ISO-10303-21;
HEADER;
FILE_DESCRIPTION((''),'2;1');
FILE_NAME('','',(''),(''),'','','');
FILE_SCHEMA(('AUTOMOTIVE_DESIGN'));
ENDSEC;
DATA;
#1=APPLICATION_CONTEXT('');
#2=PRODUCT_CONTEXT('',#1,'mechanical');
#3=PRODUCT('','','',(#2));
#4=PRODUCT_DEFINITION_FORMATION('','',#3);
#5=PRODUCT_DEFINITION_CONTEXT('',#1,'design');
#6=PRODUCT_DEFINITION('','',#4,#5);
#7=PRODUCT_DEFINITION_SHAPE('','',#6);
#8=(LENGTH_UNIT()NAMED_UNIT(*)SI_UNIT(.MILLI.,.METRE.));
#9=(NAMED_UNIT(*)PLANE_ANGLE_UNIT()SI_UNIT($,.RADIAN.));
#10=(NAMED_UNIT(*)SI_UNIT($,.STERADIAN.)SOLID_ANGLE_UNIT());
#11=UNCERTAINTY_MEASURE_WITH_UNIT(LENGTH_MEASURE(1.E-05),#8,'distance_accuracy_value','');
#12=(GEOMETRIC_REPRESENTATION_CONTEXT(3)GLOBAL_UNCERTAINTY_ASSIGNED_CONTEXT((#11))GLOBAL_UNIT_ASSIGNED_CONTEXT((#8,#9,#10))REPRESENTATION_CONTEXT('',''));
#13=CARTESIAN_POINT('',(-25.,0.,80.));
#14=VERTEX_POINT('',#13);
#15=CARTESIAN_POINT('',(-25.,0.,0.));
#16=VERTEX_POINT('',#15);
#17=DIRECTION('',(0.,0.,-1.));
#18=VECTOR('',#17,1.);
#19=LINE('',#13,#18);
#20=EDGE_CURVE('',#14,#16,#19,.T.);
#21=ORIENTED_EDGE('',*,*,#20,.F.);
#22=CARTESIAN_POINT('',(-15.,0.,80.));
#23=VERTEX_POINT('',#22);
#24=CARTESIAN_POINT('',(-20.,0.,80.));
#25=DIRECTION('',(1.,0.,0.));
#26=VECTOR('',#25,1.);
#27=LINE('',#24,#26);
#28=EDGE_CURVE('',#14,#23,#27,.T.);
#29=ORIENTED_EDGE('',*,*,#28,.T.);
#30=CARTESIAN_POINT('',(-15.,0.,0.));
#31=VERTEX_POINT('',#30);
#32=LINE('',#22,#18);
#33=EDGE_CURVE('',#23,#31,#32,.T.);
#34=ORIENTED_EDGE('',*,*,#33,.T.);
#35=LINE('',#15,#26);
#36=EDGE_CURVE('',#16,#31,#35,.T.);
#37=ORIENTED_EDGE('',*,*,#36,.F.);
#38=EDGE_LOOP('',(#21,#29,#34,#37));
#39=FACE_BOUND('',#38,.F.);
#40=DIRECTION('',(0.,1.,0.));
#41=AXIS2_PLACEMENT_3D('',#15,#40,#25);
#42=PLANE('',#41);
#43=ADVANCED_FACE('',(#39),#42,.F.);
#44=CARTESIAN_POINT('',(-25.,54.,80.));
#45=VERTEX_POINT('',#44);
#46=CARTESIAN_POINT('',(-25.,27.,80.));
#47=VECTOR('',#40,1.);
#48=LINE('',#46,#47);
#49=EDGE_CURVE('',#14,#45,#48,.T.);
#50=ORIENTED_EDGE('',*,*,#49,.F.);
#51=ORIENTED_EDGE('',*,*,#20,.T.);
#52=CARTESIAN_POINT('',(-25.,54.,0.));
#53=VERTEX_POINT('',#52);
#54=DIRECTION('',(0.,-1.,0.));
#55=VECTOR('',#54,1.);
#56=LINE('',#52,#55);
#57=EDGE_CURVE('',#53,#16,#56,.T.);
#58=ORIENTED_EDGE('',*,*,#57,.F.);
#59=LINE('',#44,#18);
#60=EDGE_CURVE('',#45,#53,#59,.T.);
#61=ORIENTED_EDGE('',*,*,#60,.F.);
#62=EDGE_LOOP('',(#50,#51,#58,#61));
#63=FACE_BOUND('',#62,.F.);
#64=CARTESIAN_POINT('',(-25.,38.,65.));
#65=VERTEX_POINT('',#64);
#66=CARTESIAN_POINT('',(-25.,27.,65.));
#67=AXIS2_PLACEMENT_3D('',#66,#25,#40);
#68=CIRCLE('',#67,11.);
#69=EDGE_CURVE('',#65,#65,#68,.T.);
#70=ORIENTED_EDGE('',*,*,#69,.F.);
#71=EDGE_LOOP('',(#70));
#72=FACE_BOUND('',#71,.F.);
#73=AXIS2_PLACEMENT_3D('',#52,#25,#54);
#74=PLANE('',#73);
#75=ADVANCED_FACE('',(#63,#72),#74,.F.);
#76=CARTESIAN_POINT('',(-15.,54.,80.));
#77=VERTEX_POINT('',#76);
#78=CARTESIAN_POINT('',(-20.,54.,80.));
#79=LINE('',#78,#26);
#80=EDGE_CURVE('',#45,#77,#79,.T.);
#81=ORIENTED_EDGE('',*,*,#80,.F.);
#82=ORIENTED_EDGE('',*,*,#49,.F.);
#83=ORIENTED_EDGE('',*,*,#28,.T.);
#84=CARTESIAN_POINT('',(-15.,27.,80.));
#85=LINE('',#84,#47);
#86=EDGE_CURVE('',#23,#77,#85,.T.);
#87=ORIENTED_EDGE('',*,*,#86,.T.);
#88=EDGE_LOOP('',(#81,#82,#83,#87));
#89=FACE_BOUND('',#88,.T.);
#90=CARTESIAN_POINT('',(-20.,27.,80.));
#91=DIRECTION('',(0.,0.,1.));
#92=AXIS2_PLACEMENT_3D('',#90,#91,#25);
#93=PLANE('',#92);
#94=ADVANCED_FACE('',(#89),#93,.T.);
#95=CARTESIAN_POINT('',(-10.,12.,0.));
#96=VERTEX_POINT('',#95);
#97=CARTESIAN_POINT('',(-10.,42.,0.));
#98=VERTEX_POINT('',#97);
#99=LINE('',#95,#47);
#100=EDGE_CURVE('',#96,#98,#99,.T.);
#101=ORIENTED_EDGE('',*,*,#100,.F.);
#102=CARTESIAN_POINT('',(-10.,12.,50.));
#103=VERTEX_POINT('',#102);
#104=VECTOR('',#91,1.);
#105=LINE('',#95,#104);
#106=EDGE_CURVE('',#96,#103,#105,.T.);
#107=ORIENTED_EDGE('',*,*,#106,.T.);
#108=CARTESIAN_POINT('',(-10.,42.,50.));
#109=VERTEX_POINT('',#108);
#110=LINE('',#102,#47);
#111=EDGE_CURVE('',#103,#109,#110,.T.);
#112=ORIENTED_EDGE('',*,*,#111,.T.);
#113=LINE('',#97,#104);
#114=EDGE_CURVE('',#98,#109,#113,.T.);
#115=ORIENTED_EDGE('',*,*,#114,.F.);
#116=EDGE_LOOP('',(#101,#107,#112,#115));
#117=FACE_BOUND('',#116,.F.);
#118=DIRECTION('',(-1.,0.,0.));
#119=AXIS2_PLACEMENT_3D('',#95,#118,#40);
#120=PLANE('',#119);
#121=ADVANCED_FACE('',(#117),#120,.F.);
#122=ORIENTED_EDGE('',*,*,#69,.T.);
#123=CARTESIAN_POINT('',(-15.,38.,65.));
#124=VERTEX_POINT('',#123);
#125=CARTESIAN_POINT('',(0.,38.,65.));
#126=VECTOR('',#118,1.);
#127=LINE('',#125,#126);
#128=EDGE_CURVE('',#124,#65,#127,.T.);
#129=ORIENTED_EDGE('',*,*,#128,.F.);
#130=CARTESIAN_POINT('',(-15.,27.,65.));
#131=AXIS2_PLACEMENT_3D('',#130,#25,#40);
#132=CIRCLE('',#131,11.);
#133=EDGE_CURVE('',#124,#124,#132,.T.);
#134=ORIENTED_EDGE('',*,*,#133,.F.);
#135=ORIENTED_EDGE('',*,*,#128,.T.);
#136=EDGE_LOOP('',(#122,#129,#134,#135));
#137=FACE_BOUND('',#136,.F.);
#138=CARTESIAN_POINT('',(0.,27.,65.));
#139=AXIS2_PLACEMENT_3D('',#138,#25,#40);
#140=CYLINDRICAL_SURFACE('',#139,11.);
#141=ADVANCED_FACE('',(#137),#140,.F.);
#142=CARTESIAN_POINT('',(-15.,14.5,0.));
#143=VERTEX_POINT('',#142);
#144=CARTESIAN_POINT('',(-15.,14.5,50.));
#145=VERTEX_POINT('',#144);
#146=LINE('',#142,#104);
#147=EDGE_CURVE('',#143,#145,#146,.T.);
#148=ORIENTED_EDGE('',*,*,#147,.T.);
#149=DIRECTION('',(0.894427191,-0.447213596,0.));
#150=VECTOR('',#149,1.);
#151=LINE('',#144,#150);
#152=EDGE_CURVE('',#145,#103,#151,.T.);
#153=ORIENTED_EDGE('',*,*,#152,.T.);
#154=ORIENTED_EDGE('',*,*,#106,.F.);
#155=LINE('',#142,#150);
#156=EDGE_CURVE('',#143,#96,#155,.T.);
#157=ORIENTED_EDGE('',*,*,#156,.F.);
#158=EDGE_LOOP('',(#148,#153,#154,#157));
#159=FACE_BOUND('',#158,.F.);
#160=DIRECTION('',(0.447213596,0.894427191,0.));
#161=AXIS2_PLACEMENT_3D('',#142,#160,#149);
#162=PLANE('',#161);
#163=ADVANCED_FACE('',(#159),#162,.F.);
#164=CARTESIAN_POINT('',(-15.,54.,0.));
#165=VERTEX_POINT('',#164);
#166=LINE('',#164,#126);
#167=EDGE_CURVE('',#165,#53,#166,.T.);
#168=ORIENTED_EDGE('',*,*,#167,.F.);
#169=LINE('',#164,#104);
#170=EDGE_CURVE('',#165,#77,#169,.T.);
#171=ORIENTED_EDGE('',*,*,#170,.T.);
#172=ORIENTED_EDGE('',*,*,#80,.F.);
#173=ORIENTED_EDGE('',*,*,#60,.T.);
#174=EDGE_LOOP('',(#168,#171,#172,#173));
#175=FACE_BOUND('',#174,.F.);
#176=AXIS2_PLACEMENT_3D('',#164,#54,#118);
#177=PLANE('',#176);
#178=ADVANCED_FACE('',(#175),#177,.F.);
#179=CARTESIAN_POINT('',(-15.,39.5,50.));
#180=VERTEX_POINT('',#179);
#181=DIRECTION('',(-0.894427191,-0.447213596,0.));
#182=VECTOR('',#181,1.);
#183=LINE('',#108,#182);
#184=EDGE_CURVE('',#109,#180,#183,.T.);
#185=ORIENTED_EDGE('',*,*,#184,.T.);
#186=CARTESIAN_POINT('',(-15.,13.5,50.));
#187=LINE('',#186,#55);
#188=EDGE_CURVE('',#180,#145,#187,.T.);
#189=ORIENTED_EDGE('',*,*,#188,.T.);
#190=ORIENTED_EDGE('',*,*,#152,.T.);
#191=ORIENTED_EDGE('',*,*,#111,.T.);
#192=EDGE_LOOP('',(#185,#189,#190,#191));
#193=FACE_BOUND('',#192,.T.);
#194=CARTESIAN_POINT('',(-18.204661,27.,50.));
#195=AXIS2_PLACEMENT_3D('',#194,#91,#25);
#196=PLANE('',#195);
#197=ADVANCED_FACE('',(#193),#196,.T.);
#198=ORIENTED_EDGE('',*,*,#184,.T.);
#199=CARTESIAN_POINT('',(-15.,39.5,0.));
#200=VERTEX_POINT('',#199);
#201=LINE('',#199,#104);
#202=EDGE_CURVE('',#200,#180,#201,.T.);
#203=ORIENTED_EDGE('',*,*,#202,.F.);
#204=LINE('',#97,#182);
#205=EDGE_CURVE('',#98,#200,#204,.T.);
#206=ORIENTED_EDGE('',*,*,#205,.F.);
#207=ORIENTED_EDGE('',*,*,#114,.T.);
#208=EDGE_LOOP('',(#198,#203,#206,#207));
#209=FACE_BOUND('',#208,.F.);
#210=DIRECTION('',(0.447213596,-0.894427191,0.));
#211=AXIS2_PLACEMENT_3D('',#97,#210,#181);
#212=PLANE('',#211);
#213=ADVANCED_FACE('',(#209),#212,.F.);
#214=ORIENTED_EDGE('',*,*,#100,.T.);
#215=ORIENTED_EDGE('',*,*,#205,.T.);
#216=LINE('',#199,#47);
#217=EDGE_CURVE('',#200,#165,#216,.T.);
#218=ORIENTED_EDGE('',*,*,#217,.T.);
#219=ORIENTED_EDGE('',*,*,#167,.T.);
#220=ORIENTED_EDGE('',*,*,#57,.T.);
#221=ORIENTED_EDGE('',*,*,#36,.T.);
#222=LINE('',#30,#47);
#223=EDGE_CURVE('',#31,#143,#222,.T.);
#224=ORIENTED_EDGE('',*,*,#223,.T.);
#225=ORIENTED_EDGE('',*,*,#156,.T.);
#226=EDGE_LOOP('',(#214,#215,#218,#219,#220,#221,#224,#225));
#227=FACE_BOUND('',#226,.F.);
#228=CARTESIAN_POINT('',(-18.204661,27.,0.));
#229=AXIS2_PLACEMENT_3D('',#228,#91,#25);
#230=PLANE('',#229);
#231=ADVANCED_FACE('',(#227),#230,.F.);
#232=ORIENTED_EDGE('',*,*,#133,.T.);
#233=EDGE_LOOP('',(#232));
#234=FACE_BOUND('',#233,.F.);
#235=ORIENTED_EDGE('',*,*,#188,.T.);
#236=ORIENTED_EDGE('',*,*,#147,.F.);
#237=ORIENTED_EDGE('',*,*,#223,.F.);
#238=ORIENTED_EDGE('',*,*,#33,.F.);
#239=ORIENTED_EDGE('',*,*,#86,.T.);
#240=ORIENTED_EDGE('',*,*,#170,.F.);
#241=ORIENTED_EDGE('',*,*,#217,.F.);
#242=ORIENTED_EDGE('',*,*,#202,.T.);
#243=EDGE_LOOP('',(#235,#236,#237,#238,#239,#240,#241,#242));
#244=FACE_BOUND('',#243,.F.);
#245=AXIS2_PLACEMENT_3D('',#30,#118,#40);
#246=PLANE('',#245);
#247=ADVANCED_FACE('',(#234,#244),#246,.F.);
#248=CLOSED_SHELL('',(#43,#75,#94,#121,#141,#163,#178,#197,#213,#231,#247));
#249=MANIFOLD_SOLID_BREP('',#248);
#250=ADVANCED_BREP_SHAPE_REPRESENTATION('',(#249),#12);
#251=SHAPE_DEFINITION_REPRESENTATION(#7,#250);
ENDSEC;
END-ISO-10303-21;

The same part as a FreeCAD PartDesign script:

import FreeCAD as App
import Part
import Sketcher

V = App.Vector

doc = App.newDocument("Part")
body = doc.addObject("PartDesign::Body", "Body")

sketch1 = body.newObject("Sketcher::SketchObject", "Sketch")
sketch1.AttachmentSupport = (doc.getObject("XY_Plane"), [""])
sketch1.MapMode = "FlatFace"
sketch1.addGeometry([
    Part.LineSegment(V(-15, 0, 0), V(-15, 14, 0)),
    Part.LineSegment(V(-15, 14, 0), V(-10, 12, 0)),
    Part.LineSegment(V(-10, 12, 0), V(-10, 42, 0)),
    Part.LineSegment(V(-10, 42, 0), V(-15, 40, 0)),
    Part.LineSegment(V(-15, 40, 0), V(-15, 54, 0)),
    Part.LineSegment(V(-15, 54, 0), V(-25, 54, 0)),
    Part.LineSegment(V(-25, 54, 0), V(-25, 0, 0)),
    Part.LineSegment(V(-25, 0, 0), V(-15, 0, 0)),
], False)
sketch1.addConstraint([
    Sketcher.Constraint("Coincident", 0, 2, 1, 1),
    Sketcher.Constraint("Coincident", 1, 2, 2, 1),
    Sketcher.Constraint("Coincident", 2, 2, 3, 1),
    Sketcher.Constraint("Coincident", 3, 2, 4, 1),
    Sketcher.Constraint("Coincident", 4, 2, 5, 1),
    Sketcher.Constraint("Coincident", 5, 2, 6, 1),
    Sketcher.Constraint("Coincident", 6, 2, 7, 1),
    Sketcher.Constraint("Coincident", 7, 2, 0, 1),
    Sketcher.Constraint("Vertical", 0),
    Sketcher.Constraint("Vertical", 2),
    Sketcher.Constraint("Vertical", 4),
    Sketcher.Constraint("Horizontal", 5),
    Sketcher.Constraint("Vertical", 6),
    Sketcher.Constraint("Horizontal", 7),
    Sketcher.Constraint("PointOnObject", 6, 2, -1),
    Sketcher.Constraint("Vertical", 0, 2, 3, 2),
    Sketcher.Constraint("Equal", 0, 4),
    Sketcher.Constraint("Equal", 1, 3),
    Sketcher.Constraint("DistanceX", 5, 2, 5, 1, 10.0),
    Sketcher.Constraint("DistanceY", 2, 1, 2, 2, 30.0),
    Sketcher.Constraint("DistanceY", 6, 2, 6, 1, 54.0),
    Sketcher.Constraint("DistanceY", 0, 1, 0, 2, 14.5),
    Sketcher.Constraint("DistanceX", 0, 2, -1, 1, 15.0),
    Sketcher.Constraint("DistanceX", 1, 2, -1, 1, 10.0),
])
pad1 = body.newObject("PartDesign::Pad", "Pad")
pad1.Profile = sketch1
pad1.Length = 50

sketch2 = body.newObject("Sketcher::SketchObject", "Sketch001")
sketch2.AttachmentSupport = (doc.getObject("XY_Plane"), [""])
sketch2.MapMode = "FlatFace"
sketch2.addGeometry([
    Part.LineSegment(V(-25, 54, 0), V(-25, 0, 0)),
    Part.LineSegment(V(-25, 0, 0), V(-15, 0, 0)),
    Part.LineSegment(V(-15, 0, 0), V(-15, 54, 0)),
    Part.LineSegment(V(-15, 54, 0), V(-25, 54, 0)),
], False)
sketch2.addConstraint([
    Sketcher.Constraint("Coincident", 0, 2, 1, 1),
    Sketcher.Constraint("Coincident", 1, 2, 2, 1),
    Sketcher.Constraint("Coincident", 2, 2, 3, 1),
    Sketcher.Constraint("Coincident", 3, 2, 0, 1),
    Sketcher.Constraint("Vertical", 0),
    Sketcher.Constraint("Horizontal", 1),
    Sketcher.Constraint("Vertical", 2),
    Sketcher.Constraint("Horizontal", 3),
    Sketcher.Constraint("PointOnObject", 0, 2, -1),
    Sketcher.Constraint("DistanceX", 1, 1, 1, 2, 10.0),
    Sketcher.Constraint("DistanceY", 0, 2, 0, 1, 54.0),
    Sketcher.Constraint("DistanceX", 0, 2, -1, 1, 25.0),
])
pad2 = body.newObject("PartDesign::Pad", "Pad001")
pad2.Profile = sketch2
pad2.Length = 80

sketch3 = body.newObject("Sketcher::SketchObject", "Sketch002")
sketch3.AttachmentSupport = (doc.getObject("YZ_Plane"), [""])
sketch3.MapMode = "FlatFace"
sketch3.addGeometry(Part.Circle(V(27, 65, 0), V(0, 0, 1), 11), False)
sketch3.addConstraint([
    Sketcher.Constraint("Diameter", 0, 22.0),
    Sketcher.Constraint("DistanceX", -1, 1, 0, 3, 27.0),
    Sketcher.Constraint("DistanceY", -1, 1, 0, 3, 65.0),
])
pocket1 = body.newObject("PartDesign::Pocket", "Pocket")
pocket1.Profile = sketch3
pocket1.Type = "ThroughAll"

doc.recompute()
